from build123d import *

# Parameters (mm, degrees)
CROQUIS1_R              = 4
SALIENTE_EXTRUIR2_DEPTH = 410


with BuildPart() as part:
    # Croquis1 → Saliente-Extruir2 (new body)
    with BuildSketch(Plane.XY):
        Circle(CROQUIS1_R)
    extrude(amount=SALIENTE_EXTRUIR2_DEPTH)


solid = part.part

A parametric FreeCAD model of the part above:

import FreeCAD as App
import Part
import Sketcher
Q = App.Units.Quantity

doc = App.newDocument("Part")
body = doc.addObject("PartDesign::Body", "Body")

sketch1 = body.newObject("Sketcher::SketchObject", "Sketch")
sketch1.AttachmentSupport = (doc.getObject("XY_Plane"), [""])
sketch1.MapMode = "FlatFace"
sketch1.addGeometry(Part.Circle(App.Vector(0, 0, 0), App.Vector(0, 0, 1), 4), False)
sketch1.addConstraint([
    Sketcher.Constraint("Coincident", 0, 3, -1, 1),
    Sketcher.Constraint("Diameter", 0, Q("8 mm")),
])
pad1 = body.newObject("PartDesign::Pad", "Pad")
pad1.Profile = sketch1
pad1.Length = 410

doc.recompute()
